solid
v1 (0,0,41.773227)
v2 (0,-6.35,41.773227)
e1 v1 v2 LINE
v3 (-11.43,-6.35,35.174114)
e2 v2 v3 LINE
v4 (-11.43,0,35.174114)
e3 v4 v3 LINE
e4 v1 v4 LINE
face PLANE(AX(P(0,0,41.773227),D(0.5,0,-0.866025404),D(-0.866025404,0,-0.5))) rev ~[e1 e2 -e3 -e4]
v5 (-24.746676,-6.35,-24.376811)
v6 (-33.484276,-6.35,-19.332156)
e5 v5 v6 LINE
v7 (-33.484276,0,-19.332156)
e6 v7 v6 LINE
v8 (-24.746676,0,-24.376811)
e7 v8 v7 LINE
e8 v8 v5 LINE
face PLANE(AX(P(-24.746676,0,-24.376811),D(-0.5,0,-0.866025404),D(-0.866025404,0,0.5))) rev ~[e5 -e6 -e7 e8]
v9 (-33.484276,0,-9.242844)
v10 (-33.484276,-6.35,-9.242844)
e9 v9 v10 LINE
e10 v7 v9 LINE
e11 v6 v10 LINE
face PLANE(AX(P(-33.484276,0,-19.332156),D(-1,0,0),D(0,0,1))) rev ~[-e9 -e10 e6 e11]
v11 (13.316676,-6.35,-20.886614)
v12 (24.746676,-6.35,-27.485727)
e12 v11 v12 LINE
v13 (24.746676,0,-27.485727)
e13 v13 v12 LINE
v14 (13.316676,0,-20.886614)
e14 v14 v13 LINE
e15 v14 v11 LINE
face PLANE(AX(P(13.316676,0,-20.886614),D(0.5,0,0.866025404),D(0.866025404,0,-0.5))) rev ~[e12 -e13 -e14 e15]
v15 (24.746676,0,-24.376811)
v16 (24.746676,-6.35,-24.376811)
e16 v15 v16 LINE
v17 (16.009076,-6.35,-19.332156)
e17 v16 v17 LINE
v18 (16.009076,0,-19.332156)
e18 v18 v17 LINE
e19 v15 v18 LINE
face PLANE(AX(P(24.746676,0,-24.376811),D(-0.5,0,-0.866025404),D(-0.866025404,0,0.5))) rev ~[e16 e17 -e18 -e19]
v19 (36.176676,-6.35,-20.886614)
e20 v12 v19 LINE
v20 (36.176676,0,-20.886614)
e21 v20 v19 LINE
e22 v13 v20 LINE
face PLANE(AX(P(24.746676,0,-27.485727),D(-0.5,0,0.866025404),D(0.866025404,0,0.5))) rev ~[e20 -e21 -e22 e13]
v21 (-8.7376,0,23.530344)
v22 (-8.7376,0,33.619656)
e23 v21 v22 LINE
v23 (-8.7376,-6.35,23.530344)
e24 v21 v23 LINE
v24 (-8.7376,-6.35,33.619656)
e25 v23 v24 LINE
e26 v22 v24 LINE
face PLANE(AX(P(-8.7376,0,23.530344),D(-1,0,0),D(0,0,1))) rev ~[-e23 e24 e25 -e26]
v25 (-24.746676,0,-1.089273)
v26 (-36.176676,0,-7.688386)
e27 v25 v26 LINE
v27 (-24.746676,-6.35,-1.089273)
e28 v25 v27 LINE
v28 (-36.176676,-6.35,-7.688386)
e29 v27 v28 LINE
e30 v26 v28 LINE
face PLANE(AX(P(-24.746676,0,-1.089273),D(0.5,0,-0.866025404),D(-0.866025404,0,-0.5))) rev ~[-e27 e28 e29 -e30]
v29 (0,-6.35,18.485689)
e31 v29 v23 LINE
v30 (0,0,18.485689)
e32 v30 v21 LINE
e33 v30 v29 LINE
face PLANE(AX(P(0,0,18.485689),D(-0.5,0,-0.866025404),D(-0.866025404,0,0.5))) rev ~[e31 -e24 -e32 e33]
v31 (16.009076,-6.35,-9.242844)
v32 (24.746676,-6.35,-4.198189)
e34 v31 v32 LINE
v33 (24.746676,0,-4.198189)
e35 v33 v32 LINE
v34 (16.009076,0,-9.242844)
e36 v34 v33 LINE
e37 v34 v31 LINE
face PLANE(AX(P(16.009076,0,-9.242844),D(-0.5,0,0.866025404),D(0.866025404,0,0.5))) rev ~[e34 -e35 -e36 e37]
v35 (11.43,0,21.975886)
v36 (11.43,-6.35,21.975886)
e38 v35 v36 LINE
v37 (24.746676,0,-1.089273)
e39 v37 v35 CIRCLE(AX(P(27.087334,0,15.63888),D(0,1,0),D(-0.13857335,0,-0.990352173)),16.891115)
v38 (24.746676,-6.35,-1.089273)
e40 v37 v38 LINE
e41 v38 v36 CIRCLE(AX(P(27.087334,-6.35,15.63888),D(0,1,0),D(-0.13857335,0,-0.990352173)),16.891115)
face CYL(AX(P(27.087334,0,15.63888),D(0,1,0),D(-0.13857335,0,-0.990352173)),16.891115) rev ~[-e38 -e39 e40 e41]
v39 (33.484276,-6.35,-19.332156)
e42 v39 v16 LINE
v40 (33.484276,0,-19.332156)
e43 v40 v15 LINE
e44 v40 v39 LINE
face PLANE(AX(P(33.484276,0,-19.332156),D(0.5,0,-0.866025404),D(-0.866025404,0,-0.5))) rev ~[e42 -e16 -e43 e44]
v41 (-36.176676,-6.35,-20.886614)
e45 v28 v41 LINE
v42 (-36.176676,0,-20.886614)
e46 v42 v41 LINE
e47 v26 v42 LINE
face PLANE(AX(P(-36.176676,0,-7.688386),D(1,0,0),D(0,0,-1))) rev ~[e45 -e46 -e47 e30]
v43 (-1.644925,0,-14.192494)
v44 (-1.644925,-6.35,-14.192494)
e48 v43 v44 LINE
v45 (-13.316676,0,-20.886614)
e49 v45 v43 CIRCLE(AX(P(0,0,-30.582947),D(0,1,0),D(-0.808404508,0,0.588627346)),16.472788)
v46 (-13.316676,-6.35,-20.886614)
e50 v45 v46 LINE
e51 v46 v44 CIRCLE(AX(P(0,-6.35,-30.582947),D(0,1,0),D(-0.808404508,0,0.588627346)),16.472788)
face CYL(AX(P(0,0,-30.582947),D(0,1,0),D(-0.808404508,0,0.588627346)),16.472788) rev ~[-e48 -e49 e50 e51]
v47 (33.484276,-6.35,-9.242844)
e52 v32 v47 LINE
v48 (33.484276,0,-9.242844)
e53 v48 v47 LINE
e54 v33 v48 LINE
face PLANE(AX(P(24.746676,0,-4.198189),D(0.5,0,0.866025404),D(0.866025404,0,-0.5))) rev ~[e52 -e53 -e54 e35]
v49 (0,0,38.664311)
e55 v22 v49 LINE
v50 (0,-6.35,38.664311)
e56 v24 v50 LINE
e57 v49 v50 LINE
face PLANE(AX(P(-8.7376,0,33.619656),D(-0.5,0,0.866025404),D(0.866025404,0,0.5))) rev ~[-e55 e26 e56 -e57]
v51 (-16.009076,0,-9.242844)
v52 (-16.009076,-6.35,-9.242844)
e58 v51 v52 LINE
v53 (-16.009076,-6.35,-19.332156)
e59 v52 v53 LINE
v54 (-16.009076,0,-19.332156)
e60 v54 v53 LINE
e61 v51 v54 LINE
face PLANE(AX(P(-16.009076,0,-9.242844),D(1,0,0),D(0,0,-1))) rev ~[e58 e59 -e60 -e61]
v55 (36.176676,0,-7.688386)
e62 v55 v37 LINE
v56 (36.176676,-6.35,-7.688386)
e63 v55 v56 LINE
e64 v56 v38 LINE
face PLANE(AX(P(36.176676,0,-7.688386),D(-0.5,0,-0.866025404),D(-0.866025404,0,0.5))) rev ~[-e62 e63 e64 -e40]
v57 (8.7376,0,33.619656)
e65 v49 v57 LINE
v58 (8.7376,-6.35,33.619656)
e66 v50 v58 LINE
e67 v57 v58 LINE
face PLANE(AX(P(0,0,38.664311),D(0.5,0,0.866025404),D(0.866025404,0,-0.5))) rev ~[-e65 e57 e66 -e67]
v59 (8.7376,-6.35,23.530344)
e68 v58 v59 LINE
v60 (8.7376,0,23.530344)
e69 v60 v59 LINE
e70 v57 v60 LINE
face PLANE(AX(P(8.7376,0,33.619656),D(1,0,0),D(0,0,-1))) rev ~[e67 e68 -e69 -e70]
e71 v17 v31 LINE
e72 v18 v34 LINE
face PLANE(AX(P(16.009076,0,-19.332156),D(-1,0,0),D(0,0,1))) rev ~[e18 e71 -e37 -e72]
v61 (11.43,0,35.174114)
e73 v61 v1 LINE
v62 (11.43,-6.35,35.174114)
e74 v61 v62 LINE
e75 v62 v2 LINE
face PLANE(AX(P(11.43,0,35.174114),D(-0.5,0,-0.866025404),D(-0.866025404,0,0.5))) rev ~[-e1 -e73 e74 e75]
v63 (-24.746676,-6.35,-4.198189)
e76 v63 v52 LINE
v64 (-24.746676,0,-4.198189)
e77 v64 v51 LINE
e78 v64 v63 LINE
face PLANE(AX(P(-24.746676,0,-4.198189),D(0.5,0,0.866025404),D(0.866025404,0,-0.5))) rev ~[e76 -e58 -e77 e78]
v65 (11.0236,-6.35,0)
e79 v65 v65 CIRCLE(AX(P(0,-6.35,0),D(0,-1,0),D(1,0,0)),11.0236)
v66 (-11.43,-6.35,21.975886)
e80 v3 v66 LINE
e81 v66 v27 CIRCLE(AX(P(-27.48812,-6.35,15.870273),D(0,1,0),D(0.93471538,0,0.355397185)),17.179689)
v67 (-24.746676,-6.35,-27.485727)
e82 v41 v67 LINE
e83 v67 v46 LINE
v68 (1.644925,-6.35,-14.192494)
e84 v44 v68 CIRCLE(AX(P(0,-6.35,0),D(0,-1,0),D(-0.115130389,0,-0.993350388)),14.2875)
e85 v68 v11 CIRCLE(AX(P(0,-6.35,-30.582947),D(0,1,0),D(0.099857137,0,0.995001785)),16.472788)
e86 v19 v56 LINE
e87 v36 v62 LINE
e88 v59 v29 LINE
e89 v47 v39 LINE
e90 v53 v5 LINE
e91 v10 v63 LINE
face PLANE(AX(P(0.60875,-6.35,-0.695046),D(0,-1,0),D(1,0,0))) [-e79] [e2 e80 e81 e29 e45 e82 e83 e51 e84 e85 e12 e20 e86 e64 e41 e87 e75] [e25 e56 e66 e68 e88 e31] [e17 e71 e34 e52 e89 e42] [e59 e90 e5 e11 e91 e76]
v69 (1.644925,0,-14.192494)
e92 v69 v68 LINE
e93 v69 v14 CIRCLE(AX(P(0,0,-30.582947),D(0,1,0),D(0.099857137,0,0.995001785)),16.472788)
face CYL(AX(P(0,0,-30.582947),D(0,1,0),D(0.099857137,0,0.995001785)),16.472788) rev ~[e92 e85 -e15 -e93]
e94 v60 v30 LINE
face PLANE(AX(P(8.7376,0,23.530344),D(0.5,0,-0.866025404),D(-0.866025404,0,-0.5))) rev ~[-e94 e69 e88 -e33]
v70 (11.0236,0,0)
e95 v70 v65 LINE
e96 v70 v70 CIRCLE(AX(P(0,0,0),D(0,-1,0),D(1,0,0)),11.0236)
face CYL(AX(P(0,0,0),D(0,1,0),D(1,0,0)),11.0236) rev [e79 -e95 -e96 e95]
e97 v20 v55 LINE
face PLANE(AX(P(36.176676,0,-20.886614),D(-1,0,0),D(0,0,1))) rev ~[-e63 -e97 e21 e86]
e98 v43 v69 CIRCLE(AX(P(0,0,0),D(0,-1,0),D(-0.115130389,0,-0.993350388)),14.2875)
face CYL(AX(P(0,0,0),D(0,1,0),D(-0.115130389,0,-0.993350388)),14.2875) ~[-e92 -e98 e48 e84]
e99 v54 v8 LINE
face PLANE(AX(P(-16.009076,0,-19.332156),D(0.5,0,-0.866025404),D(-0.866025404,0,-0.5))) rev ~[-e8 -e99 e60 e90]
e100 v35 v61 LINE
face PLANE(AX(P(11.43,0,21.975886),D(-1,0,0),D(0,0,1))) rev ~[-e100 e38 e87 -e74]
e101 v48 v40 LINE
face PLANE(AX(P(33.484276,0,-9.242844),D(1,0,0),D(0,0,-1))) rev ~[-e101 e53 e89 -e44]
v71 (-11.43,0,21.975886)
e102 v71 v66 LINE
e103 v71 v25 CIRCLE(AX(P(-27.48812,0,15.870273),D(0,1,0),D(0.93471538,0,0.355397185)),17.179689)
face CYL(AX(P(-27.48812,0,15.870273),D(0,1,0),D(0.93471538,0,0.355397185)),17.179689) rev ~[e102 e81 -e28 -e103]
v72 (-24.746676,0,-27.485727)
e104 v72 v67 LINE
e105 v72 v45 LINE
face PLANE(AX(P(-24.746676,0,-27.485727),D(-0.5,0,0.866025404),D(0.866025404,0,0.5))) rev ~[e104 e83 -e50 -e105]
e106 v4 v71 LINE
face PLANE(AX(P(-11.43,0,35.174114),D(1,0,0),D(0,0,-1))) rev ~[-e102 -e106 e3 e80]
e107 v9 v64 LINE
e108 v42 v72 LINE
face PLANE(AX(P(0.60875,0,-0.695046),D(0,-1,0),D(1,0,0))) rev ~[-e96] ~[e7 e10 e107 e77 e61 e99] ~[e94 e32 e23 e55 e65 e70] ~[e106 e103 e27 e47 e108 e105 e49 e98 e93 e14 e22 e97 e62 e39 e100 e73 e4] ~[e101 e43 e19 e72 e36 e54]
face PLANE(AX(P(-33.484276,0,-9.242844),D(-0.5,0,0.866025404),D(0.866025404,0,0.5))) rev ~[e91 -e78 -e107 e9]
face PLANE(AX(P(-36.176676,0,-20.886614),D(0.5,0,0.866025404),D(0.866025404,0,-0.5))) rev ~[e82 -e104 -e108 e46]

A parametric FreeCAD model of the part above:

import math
import FreeCAD as App
import Part
import Sketcher
from FreeCAD import Vector
Q = App.Units.Quantity


def add_polygon(sketch, points):
    """Adds a closed chain of lines whose ends are joined by coincident constraints."""
    first, n = sketch.GeometryCount, len(points)
    for a, b in zip(points, points[1:] + points[:1]):
        sketch.addGeometry(Part.LineSegment(App.Vector(*a, 0), App.Vector(*b, 0)), False)
    for i in range(n):
        sketch.addConstraint(Sketcher.Constraint("Coincident", first + i, 2, first + (i + 1) % n, 1))

doc = App.newDocument("Part")
params = doc.addObject("Spreadsheet::Sheet", "Params")
for row, (alias, value) in enumerate([
    ("sketch1_diameter", "0.868 in"),
    ("sketch1_radius", "0.5625 in"),
    ("pad1_length", "0.25 in"),
], start=1):
    params.set(f"A{row}", alias)
    params.set(f"B{row}", "=" + value)
    params.setAlias(f"B{row}", alias)

body = doc.addObject("PartDesign::Body", "Body")

# Sketch on XZ plane
sketch1 = body.newObject("Sketcher::SketchObject", "Sketch")
sketch1.AttachmentSupport = (doc.getObject("XZ_Plane"), [""])
sketch1.MapMode = "FlatFace"
sketch1.addGeometry(Part.ArcOfCircle(Part.Circle(Vector(0, -30.6, 0), Vector(0, 0, 1), 16.5), math.radians(36), math.radians(84)), False)  # 0
sketch1.addGeometry(Part.LineSegment(Vector(13.3, -20.9, 0), Vector(24.7, -27.5, 0)), False)  # 1
sketch1.addGeometry(Part.LineSegment(Vector(24.7, -27.5, 0), Vector(36.2, -20.9, 0)), False)  # 2
sketch1.addGeometry(Part.LineSegment(Vector(36.2, -20.9, 0), Vector(36.2, -7.7, 0)), False)  # 3
sketch1.addGeometry(Part.LineSegment(Vector(36.2, -7.7, 0), Vector(24.7, -1.1, 0)), False)  # 4
sketch1.addGeometry(Part.ArcOfCircle(Part.Circle(Vector(27.1, 15.6, 0), Vector(0, 0, 1), 16.9), math.radians(158), math.radians(262)), False)  # 5
sketch1.addGeometry(Part.LineSegment(Vector(11.4, 22, 0), Vector(11.4, 35.2, 0)), False)  # 6
sketch1.addGeometry(Part.LineSegment(Vector(11.4, 35.2, 0), Vector(0, 41.8, 0)), False)  # 7
sketch1.addGeometry(Part.LineSegment(Vector(0, 41.8, 0), Vector(-11.4, 35.2, 0)), False)  # 8
sketch1.addGeometry(Part.LineSegment(Vector(-11.4, 35.2, 0), Vector(-11.4, 22, 0)), False)  # 9
sketch1.addGeometry(Part.ArcOfCircle(Part.Circle(Vector(-27.5, 15.9, 0), Vector(0, 0, 1), 17.2), math.radians(-81), math.radians(21)), False)  # 10
sketch1.addGeometry(Part.LineSegment(Vector(-24.7, -1.1, 0), Vector(-36.2, -7.7, 0)), False)  # 11
sketch1.addGeometry(Part.LineSegment(Vector(-36.2, -7.7, 0), Vector(-36.2, -20.9, 0)), False)  # 12
sketch1.addGeometry(Part.LineSegment(Vector(-36.2, -20.9, 0), Vector(-24.7, -27.5, 0)), False)  # 13
sketch1.addGeometry(Part.LineSegment(Vector(-24.7, -27.5, 0), Vector(-13.3, -20.9, 0)), False)  # 14
sketch1.addGeometry(Part.ArcOfCircle(Part.Circle(Vector(0, -30.6, 0), Vector(0, 0, 1), 16.5), math.radians(96), math.radians(144)), False)  # 15
sketch1.addGeometry(Part.ArcOfCircle(Part.Circle(Vector(0, 0, 0), Vector(0, 0, 1), 14.3), math.radians(-96.61), math.radians(-83.39)), False)  # 16
add_polygon(sketch1, [(-24.7, -24.4), (-33.5, -19.3), (-33.5, -9.2), (-24.7, -4.2), (-16, -9.2), (-16, -19.3)])  # lines 17-22
add_polygon(sketch1, [(33.5, -9.2), (33.5, -19.3), (24.7, -24.4), (16, -19.3), (16, -9.2), (24.7, -4.2)])  # lines 23-28
sketch1.addGeometry(Part.Circle(Vector(0, 0, 0), Vector(0, 0, 1), 11), False)  # 29
add_polygon(sketch1, [(-8.7, 33.6), (0, 38.7), (8.7, 33.6), (8.7, 23.5), (0, 18.5), (-8.7, 23.5)])  # lines 30-35
sketch1.addConstraint(Sketcher.Constraint("Coincident", 0, 1, 1, 1))
sketch1.addConstraint(Sketcher.Constraint("Coincident", 1, 2, 2, 1))
sketch1.addConstraint(Sketcher.Constraint("Coincident", 2, 2, 3, 1))
sketch1.addConstraint(Sketcher.Constraint("Coincident", 3, 2, 4, 1))
sketch1.addConstraint(Sketcher.Constraint("Coincident", 4, 2, 5, 2))
sketch1.addConstraint(Sketcher.Constraint("Coincident", 5, 1, 6, 1))
sketch1.addConstraint(Sketcher.Constraint("Coincident", 6, 2, 7, 1))
sketch1.addConstraint(Sketcher.Constraint("Coincident", 7, 2, 8, 1))
sketch1.addConstraint(Sketcher.Constraint("Coincident", 8, 2, 9, 1))
sketch1.addConstraint(Sketcher.Constraint("Coincident", 9, 2, 10, 2))
sketch1.addConstraint(Sketcher.Constraint("Coincident", 10, 1, 11, 1))
sketch1.addConstraint(Sketcher.Constraint("Coincident", 11, 2, 12, 1))
sketch1.addConstraint(Sketcher.Constraint("Coincident", 12, 2, 13, 1))
sketch1.addConstraint(Sketcher.Constraint("Coincident", 13, 2, 14, 1))
sketch1.addConstraint(Sketcher.Constraint("Coincident", 14, 2, 15, 2))
sketch1.addConstraint(Sketcher.Constraint("Coincident", 15, 1, 16, 1))
sketch1.addConstraint(Sketcher.Constraint("Coincident", 16, 2, 0, 2))
sketch1.addConstraint(Sketcher.Constraint("Vertical", 3))
sketch1.addConstraint(Sketcher.Constraint("Vertical", 6))
sketch1.addConstraint(Sketcher.Constraint("Vertical", 9))
sketch1.addConstraint(Sketcher.Constraint("Vertical", 12))
sketch1.addConstraint(Sketcher.Constraint("Vertical", 18))
sketch1.addConstraint(Sketcher.Constraint("Vertical", 21))
sketch1.addConstraint(Sketcher.Constraint("Vertical", 23))
sketch1.addConstraint(Sketcher.Constraint("Vertical", 26))
sketch1.addConstraint(Sketcher.Constraint("Vertical", 32))
sketch1.addConstraint(Sketcher.Constraint("Vertical", 35))
sketch1.addConstraint(Sketcher.Constraint("Coincident", 16, 3, -1, 1))
sketch1.addConstraint(Sketcher.Constraint("Coincident", 29, 3, -1, 1))
sketch1.addConstraint(Sketcher.Constraint("Coincident", 15, 3, 0, 3))
sketch1.addConstraint(Sketcher.Constraint("Equal", 0, 15))
sketch1.addConstraint(Sketcher.Constraint("Symmetric", 6, 2, 8, 2, -2))
sketch1.addConstraint(Sketcher.Constraint("Symmetric", 4, 2, 10, 1, -2))
sketch1.addConstraint(Sketcher.Constraint("Symmetric", 3, 2, 11, 2, -2))
sketch1.addConstraint(Sketcher.Constraint("Symmetric", 1, 2, 13, 2, -2))
sketch1.addConstraint(Sketcher.Constraint("Symmetric", 0, 1, 14, 2, -2))
sketch1.addConstraint(Sketcher.Constraint("Symmetric", 17, 2, 23, 2, -2))
sketch1.addConstraint(Sketcher.Constraint("Symmetric", 22, 2, 24, 2, -2))
sketch1.addConstraint(Sketcher.Constraint("Symmetric", 21, 2, 25, 2, -2))
sketch1.addConstraint(Sketcher.Constraint("Symmetric", 19, 2, 27, 2, -2))
sketch1.addConstraint(Sketcher.Constraint("Symmetric", 32, 2, 34, 2, -2))
sketch1.addConstraint(Sketcher.Constraint("PointOnObject", 7, 2, -2))
sketch1.addConstraint(Sketcher.Constraint("PointOnObject", 30, 2, -2))
sketch1.addConstraint(Sketcher.Constraint("PointOnObject", 33, 2, -2))
sketch1.addConstraint(Sketcher.Constraint("Parallel", 1, 4))
sketch1.addConstraint(Sketcher.Constraint("Parallel", 4, 7))
sketch1.addConstraint(Sketcher.Constraint("Parallel", 2, 8))
sketch1.addConstraint(Sketcher.Constraint("Parallel", 7, 13))
sketch1.addConstraint(Sketcher.Constraint("Parallel", 13, 17))
sketch1.addConstraint(Sketcher.Constraint("Parallel", 14, 19))
sketch1.addConstraint(Sketcher.Constraint("Parallel", 17, 20))
sketch1.addConstraint(Sketcher.Constraint("Parallel", 19, 22))
sketch1.addConstraint(Sketcher.Constraint("Parallel", 24, 27))
sketch1.addConstraint(Sketcher.Constraint("Parallel", 25, 28))
sketch1.addConstraint(Sketcher.Constraint("Parallel", 27, 30))
sketch1.addConstraint(Sketcher.Constraint("Parallel", 28, 31))
sketch1.addConstraint(Sketcher.Constraint("Parallel", 30, 33))
sketch1.addConstraint(Sketcher.Constraint("Horizontal", 0, 1, 2, 2))
sketch1.addConstraint(Sketcher.Constraint("Horizontal", 5, 1, 9, 2))
sketch1.addConstraint(Sketcher.Constraint("Horizontal", 18, 2, 20, 2))
sketch1.addConstraint(Sketcher.Constraint("Horizontal", 17, 2, 21, 2))
sketch1.addConstraint(Sketcher.Constraint("Vertical", 1, 2, 4, 2))
sketch1.addConstraint(Sketcher.Constraint("Vertical", 13, 2, 19, 2))
sketch1.addConstraint(Sketcher.Constraint("Equal", 3, 6))
sketch1.addConstraint(Sketcher.Constraint("Equal", 26, 32))
sketch1.addConstraint(Sketcher.Constraint("Equal", 4, 7))
sketch1.addConstraint(Sketcher.Constraint("Equal", 28, 30))
sketch1.addConstraint(Sketcher.Constraint("Diameter", 29, Q("0.868 in")))
sketch1.addConstraint(Sketcher.Constraint("Angle", 1, Q("-30 deg")))
sketch1.addConstraint(Sketcher.Constraint("Radius", 16, Q("0.5625 in")))
sketch1.addConstraint(Sketcher.Constraint("DistanceX", 0, 1, 2, 2, Q("0.9 in")))
sketch1.addConstraint(Sketcher.Constraint("DistanceX", -1, 1, 31, 2, Q("0.344 in")))
sketch1.addConstraint(Sketcher.Constraint("Radius", 10, 17.179689))
sketch1.addConstraint(Sketcher.Constraint("Radius", 0, 16.472788))
sketch1.addConstraint(Sketcher.Constraint("Radius", 5, 16.891115))
sketch1.addConstraint(Sketcher.Constraint("DistanceY", 18, 1, 18, 2, 10.089311))
sketch1.addConstraint(Sketcher.Constraint("DistanceX", 15, 1, 0, 1, 14.961601))
sketch1.addConstraint(Sketcher.Constraint("DistanceY", 3, 1, 3, 2, 13.198227))
sketch1.addConstraint(Sketcher.Constraint("DistanceY", -1, 1, 5, 3, 15.63888))
sketch1.addConstraint(Sketcher.Constraint("DistanceX", 10, 3, -1, 1, 27.48812))
sketch1.addConstraint(Sketcher.Constraint("DistanceY", 19, 2, -1, 1, 4.198189))
sketch1.addConstraint(Sketcher.Constraint("DistanceY", -1, 1, 30, 2, 38.664311))
sketch1.setExpression("Constraints[85]", "Params.sketch1_diameter")
sketch1.setExpression("Constraints[87]", "Params.sketch1_radius")
pad1 = body.newObject("PartDesign::Pad", "Pad")
pad1.Profile = sketch1
pad1.setExpression("Length", "Params.pad1_length")

doc.recompute()
